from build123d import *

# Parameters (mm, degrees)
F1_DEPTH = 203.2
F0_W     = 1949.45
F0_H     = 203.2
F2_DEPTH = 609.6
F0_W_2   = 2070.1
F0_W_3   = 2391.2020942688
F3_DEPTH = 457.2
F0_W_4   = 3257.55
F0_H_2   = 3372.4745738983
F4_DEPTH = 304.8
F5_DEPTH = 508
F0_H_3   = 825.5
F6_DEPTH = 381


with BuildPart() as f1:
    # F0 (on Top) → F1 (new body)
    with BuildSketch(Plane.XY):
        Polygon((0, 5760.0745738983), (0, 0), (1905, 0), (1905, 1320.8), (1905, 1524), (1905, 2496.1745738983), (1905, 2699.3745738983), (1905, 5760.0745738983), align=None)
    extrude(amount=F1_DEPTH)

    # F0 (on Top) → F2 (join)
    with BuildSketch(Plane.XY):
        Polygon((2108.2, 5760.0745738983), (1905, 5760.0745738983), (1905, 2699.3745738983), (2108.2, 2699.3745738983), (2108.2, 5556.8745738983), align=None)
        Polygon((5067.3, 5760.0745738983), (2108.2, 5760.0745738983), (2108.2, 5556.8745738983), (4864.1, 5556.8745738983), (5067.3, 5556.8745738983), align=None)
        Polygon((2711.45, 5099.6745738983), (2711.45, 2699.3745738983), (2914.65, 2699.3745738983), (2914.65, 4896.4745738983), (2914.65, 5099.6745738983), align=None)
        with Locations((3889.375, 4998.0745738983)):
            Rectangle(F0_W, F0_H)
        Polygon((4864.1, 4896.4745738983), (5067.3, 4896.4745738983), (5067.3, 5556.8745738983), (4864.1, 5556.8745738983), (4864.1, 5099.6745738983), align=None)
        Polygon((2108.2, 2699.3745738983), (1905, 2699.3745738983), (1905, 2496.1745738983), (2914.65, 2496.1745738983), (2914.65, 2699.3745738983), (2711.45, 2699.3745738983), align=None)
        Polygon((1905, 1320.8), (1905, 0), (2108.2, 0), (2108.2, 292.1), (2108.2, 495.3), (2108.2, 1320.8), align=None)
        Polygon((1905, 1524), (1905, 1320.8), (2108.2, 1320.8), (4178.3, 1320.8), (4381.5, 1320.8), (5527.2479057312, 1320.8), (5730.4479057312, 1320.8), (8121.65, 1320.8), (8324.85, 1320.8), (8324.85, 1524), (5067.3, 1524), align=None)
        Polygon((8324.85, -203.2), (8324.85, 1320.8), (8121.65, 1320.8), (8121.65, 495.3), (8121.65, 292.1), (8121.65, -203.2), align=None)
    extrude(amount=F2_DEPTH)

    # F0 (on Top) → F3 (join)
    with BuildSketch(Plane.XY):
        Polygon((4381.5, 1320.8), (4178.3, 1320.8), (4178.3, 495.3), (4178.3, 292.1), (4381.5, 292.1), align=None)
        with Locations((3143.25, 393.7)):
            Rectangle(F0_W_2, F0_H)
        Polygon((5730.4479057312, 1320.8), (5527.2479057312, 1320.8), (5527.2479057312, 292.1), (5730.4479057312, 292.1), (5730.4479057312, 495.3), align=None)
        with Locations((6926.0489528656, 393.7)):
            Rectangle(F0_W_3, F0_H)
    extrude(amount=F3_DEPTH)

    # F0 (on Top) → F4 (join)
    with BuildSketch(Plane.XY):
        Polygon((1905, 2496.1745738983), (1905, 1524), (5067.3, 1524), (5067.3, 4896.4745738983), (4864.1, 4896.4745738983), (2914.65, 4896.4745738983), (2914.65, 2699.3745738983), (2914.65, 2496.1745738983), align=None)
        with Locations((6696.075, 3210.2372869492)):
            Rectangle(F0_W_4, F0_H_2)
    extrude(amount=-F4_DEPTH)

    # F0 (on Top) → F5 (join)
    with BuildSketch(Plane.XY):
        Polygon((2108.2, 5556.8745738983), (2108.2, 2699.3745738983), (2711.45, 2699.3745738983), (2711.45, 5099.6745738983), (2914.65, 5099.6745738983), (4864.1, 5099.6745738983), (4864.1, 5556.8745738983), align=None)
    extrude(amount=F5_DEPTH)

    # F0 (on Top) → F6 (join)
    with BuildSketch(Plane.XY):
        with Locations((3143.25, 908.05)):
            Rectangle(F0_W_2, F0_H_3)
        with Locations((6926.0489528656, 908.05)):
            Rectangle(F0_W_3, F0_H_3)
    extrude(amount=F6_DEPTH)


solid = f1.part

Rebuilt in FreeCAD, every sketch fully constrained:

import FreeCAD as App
import Part
import Sketcher
Q = App.Units.Quantity

doc = App.newDocument("Part")
body = doc.addObject("PartDesign::Body", "Body")
body.AllowCompound = True

# Sketch on XY plane
sketch1 = body.newObject("Sketcher::SketchObject", "Sketch")
sketch1.AttachmentSupport = (doc.getObject("XY_Plane"), [""])
sketch1.MapMode = "FlatFace"
sketch1.addGeometry([
    Part.LineSegment(App.Vector(0, 5760, 0), App.Vector(0, 0, 0)),
    Part.LineSegment(App.Vector(0, 0, 0), App.Vector(1905, 0, 0)),
    Part.LineSegment(App.Vector(1905, 0, 0), App.Vector(1905, 5760, 0)),
    Part.LineSegment(App.Vector(1905, 5760, 0), App.Vector(0, 5760, 0)),
], False)
sketch1.addConstraint([
    Sketcher.Constraint("Coincident", 0, 2, 1, 1),
    Sketcher.Constraint("Coincident", 1, 2, 2, 1),
    Sketcher.Constraint("Coincident", 2, 2, 3, 1),
    Sketcher.Constraint("Coincident", 3, 2, 0, 1),
    Sketcher.Constraint("Vertical", 0),
    Sketcher.Constraint("Horizontal", 1),
    Sketcher.Constraint("Vertical", 2),
    Sketcher.Constraint("Horizontal", 3),
    Sketcher.Constraint("Coincident", 0, 2, -1, 1),
    Sketcher.Constraint("DistanceX", 1, 1, 1, 2, Q("75 in")),
    Sketcher.Constraint("DistanceY", 0, 2, 0, 1, Q("5760.074574 mm")),
])
pad1 = body.newObject("PartDesign::Pad", "Pad")
pad1.Profile = sketch1
pad1.Length = Q("8 in")

# Sketch on XY plane
sketch2 = body.newObject("Sketcher::SketchObject", "Sketch001")
sketch2.AttachmentSupport = (doc.getObject("XY_Plane"), [""])
sketch2.MapMode = "FlatFace"
sketch2.addGeometry([
    Part.LineSegment(App.Vector(1905, 5760, 0), App.Vector(1905, 2496, 0)),  # 0
    Part.LineSegment(App.Vector(1905, 2496, 0), App.Vector(2915, 2496, 0)),  # 1
    Part.LineSegment(App.Vector(2915, 2496, 0), App.Vector(2915, 4896, 0)),  # 2
    Part.LineSegment(App.Vector(2915, 4896, 0), App.Vector(5067, 4896, 0)),  # 3
    Part.LineSegment(App.Vector(5067, 4896, 0), App.Vector(5067, 5760, 0)),  # 4
    Part.LineSegment(App.Vector(5067, 5760, 0), App.Vector(1905, 5760, 0)),  # 5
    Part.LineSegment(App.Vector(2108, 2699, 0), App.Vector(2108, 5557, 0)),  # 6
    Part.LineSegment(App.Vector(2108, 5557, 0), App.Vector(4864, 5557, 0)),  # 7
    Part.LineSegment(App.Vector(4864, 5557, 0), App.Vector(4864, 5100, 0)),  # 8
    Part.LineSegment(App.Vector(4864, 5100, 0), App.Vector(2711, 5100, 0)),  # 9
    Part.LineSegment(App.Vector(2711, 5100, 0), App.Vector(2711, 2699, 0)),  # 10
    Part.LineSegment(App.Vector(2711, 2699, 0), App.Vector(2108, 2699, 0)),  # 11
    Part.LineSegment(App.Vector(1905, 0, 0), App.Vector(2108, 0, 0)),  # 12
    Part.LineSegment(App.Vector(2108, 0, 0), App.Vector(2108, 1321, 0)),  # 13
    Part.LineSegment(App.Vector(2108, 1321, 0), App.Vector(8122, 1321, 0)),  # 14
    Part.LineSegment(App.Vector(8122, 1321, 0), App.Vector(8122, -203, 0)),  # 15
    Part.LineSegment(App.Vector(8122, -203, 0), App.Vector(8325, -203, 0)),  # 16
    Part.LineSegment(App.Vector(8325, -203, 0), App.Vector(8325, 1524, 0)),  # 17
    Part.LineSegment(App.Vector(8325, 1524, 0), App.Vector(1905, 1524, 0)),  # 18
    Part.LineSegment(App.Vector(1905, 1524, 0), App.Vector(1905, 0, 0)),  # 19
], False)
sketch2.addConstraint([
    Sketcher.Constraint("Coincident", 0, 2, 1, 1),
    Sketcher.Constraint("Coincident", 1, 2, 2, 1),
    Sketcher.Constraint("Coincident", 2, 2, 3, 1),
    Sketcher.Constraint("Coincident", 3, 2, 4, 1),
    Sketcher.Constraint("Coincident", 4, 2, 5, 1),
    Sketcher.Constraint("Coincident", 5, 2, 0, 1),
    Sketcher.Constraint("Coincident", 6, 2, 7, 1),
    Sketcher.Constraint("Coincident", 7, 2, 8, 1),
    Sketcher.Constraint("Coincident", 8, 2, 9, 1),
    Sketcher.Constraint("Coincident", 9, 2, 10, 1),
    Sketcher.Constraint("Coincident", 10, 2, 11, 1),
    Sketcher.Constraint("Coincident", 11, 2, 6, 1),
    Sketcher.Constraint("Coincident", 12, 2, 13, 1),
    Sketcher.Constraint("Coincident", 13, 2, 14, 1),
    Sketcher.Constraint("Coincident", 14, 2, 15, 1),
    Sketcher.Constraint("Coincident", 15, 2, 16, 1),
    Sketcher.Constraint("Coincident", 16, 2, 17, 1),
    Sketcher.Constraint("Coincident", 17, 2, 18, 1),
    Sketcher.Constraint("Coincident", 18, 2, 19, 1),
    Sketcher.Constraint("Coincident", 19, 2, 12, 1),
    Sketcher.Constraint("Vertical", 0),
    Sketcher.Constraint("Horizontal", 1),
    Sketcher.Constraint("Vertical", 2),
    Sketcher.Constraint("Horizontal", 3),
    Sketcher.Constraint("Vertical", 4),
    Sketcher.Constraint("Horizontal", 5),
    Sketcher.Constraint("Vertical", 6),
    Sketcher.Constraint("Horizontal", 7),
    Sketcher.Constraint("Vertical", 8),
    Sketcher.Constraint("Horizontal", 9),
    Sketcher.Constraint("Vertical", 10),
    Sketcher.Constraint("Horizontal", 11),
    Sketcher.Constraint("Horizontal", 12),
    Sketcher.Constraint("Vertical", 13),
    Sketcher.Constraint("Horizontal", 14),
    Sketcher.Constraint("Vertical", 15),
    Sketcher.Constraint("Horizontal", 16),
    Sketcher.Constraint("Vertical", 17),
    Sketcher.Constraint("Horizontal", 18),
    Sketcher.Constraint("Vertical", 19),
    Sketcher.Constraint("PointOnObject", 12, 2, -1),
    Sketcher.Constraint("Vertical", 11, 2, 12, 2),
    Sketcher.Constraint("Vertical", 5, 2, 18, 2),
    Sketcher.Constraint("Equal", 3, 9),
    Sketcher.Constraint("Equal", 12, 16),
    Sketcher.Constraint("Equal", 2, 10),
    Sketcher.Constraint("Equal", 15, 19),
    Sketcher.Constraint("DistanceX", 12, 1, 12, 2, Q("8 in")),
    Sketcher.Constraint("DistanceY", 4, 1, 4, 2, Q("34 in")),
    Sketcher.Constraint("DistanceY", 8, 2, 8, 1, Q("18 in")),
    Sketcher.Constraint("DistanceY", 13, 1, 13, 2, Q("52 in")),
    Sketcher.Constraint("DistanceY", 15, 2, 15, 1, Q("60 in")),
    Sketcher.Constraint("DistanceX", 5, 2, 5, 1, Q("124.5 in")),
    Sketcher.Constraint("DistanceX", 7, 1, 7, 2, Q("108.5 in")),
    Sketcher.Constraint("DistanceY", 0, 2, 0, 1, Q("128.5 in")),
    Sketcher.Constraint("DistanceX", -1, 1, 0, 2, Q("75 in")),
    Sketcher.Constraint("DistanceY", 6, 2, 5, 2, Q("8 in")),
    Sketcher.Constraint("DistanceX", 1, 2, 14, 2, Q("205 in")),
    Sketcher.Constraint("DistanceX", 1, 1, 1, 2, Q("39.75 in")),
    Sketcher.Constraint("DistanceY", -1, 1, 0, 2, Q("2496.174574 mm")),
])
pad2 = body.newObject("PartDesign::Pad", "Pad001")
pad2.Profile = sketch2
pad2.Length = Q("24 in")

# Sketch on XY plane
sketch3 = body.newObject("Sketcher::SketchObject", "Sketch002")
sketch3.AttachmentSupport = (doc.getObject("XY_Plane"), [""])
sketch3.MapMode = "FlatFace"
sketch3.addGeometry([
    Part.LineSegment(App.Vector(4382, 1321, 0), App.Vector(4178, 1321, 0)),  # 0
    Part.LineSegment(App.Vector(4178, 1321, 0), App.Vector(4178, 495, 0)),  # 1
    Part.LineSegment(App.Vector(4178, 495, 0), App.Vector(2108, 495, 0)),  # 2
    Part.LineSegment(App.Vector(2108, 495, 0), App.Vector(2108, 292, 0)),  # 3
    Part.LineSegment(App.Vector(2108, 292, 0), App.Vector(4382, 292, 0)),  # 4
    Part.LineSegment(App.Vector(4382, 292, 0), App.Vector(4382, 1321, 0)),  # 5
    Part.LineSegment(App.Vector(5730, 1321, 0), App.Vector(5527, 1321, 0)),  # 6
    Part.LineSegment(App.Vector(5527, 1321, 0), App.Vector(5527, 292, 0)),  # 7
    Part.LineSegment(App.Vector(5527, 292, 0), App.Vector(8122, 292, 0)),  # 8
    Part.LineSegment(App.Vector(8122, 292, 0), App.Vector(8122, 495, 0)),  # 9
    Part.LineSegment(App.Vector(8122, 495, 0), App.Vector(5730, 495, 0)),  # 10
    Part.LineSegment(App.Vector(5730, 495, 0), App.Vector(5730, 1321, 0)),  # 11
], False)
sketch3.addConstraint([
    Sketcher.Constraint("Coincident", 0, 2, 1, 1),
    Sketcher.Constraint("Coincident", 1, 2, 2, 1),
    Sketcher.Constraint("Coincident", 2, 2, 3, 1),
    Sketcher.Constraint("Coincident", 3, 2, 4, 1),
    Sketcher.Constraint("Coincident", 4, 2, 5, 1),
    Sketcher.Constraint("Coincident", 5, 2, 0, 1),
    Sketcher.Constraint("Coincident", 6, 2, 7, 1),
    Sketcher.Constraint("Coincident", 7, 2, 8, 1),
    Sketcher.Constraint("Coincident", 8, 2, 9, 1),
    Sketcher.Constraint("Coincident", 9, 2, 10, 1),
    Sketcher.Constraint("Coincident", 10, 2, 11, 1),
    Sketcher.Constraint("Coincident", 11, 2, 6, 1),
    Sketcher.Constraint("Horizontal", 0),
    Sketcher.Constraint("Vertical", 1),
    Sketcher.Constraint("Horizontal", 2),
    Sketcher.Constraint("Vertical", 3),
    Sketcher.Constraint("Horizontal", 4),
    Sketcher.Constraint("Vertical", 5),
    Sketcher.Constraint("Horizontal", 6),
    Sketcher.Constraint("Vertical", 7),
    Sketcher.Constraint("Horizontal", 8),
    Sketcher.Constraint("Vertical", 9),
    Sketcher.Constraint("Horizontal", 10),
    Sketcher.Constraint("Vertical", 11),
    Sketcher.Constraint("Horizontal", 5, 2, 6, 2),
    Sketcher.Constraint("Horizontal", 4, 2, 7, 2),
    Sketcher.Constraint("Horizontal", 2, 2, 9, 2),
    Sketcher.Constraint("Equal", 0, 6),
    Sketcher.Constraint("Equal", 6, 3),
    Sketcher.Constraint("DistanceX", 0, 2, 0, 1, Q("8 in")),
    Sketcher.Constraint("DistanceX", 2, 2, 2, 1, Q("81.5 in")),
    Sketcher.Constraint("DistanceY", 1, 2, 1, 1, Q("32.5 in")),
    Sketcher.Constraint("DistanceY", -1, 1, 0, 2, Q("52 in")),
    Sketcher.Constraint("DistanceX", -1, 1, 2, 2, Q("83 in")),
    Sketcher.Constraint("DistanceX", -1, 1, 8, 2, Q("319.75 in")),
    Sketcher.Constraint("DistanceX", 8, 1, 8, 2, Q("2594.402094 mm")),
])
pad3 = body.newObject("PartDesign::Pad", "Pad002")
pad3.Profile = sketch3
pad3.Length = Q("18 in")

# Sketch on XY plane
sketch4 = body.newObject("Sketcher::SketchObject", "Sketch003")
sketch4.AttachmentSupport = (doc.getObject("XY_Plane"), [""])
sketch4.MapMode = "FlatFace"
sketch4.addGeometry([
    Part.LineSegment(App.Vector(1905, 2496, 0), App.Vector(1905, 1524, 0)),  # 0
    Part.LineSegment(App.Vector(1905, 1524, 0), App.Vector(8325, 1524, 0)),  # 1
    Part.LineSegment(App.Vector(8325, 1524, 0), App.Vector(8325, 4896, 0)),  # 2
    Part.LineSegment(App.Vector(8325, 4896, 0), App.Vector(2915, 4896, 0)),  # 3
    Part.LineSegment(App.Vector(2915, 4896, 0), App.Vector(2915, 2496, 0)),  # 4
    Part.LineSegment(App.Vector(2915, 2496, 0), App.Vector(1905, 2496, 0)),  # 5
], False)
sketch4.addConstraint([
    Sketcher.Constraint("Coincident", 0, 2, 1, 1),
    Sketcher.Constraint("Coincident", 1, 2, 2, 1),
    Sketcher.Constraint("Coincident", 2, 2, 3, 1),
    Sketcher.Constraint("Coincident", 3, 2, 4, 1),
    Sketcher.Constraint("Coincident", 4, 2, 5, 1),
    Sketcher.Constraint("Coincident", 5, 2, 0, 1),
    Sketcher.Constraint("Vertical", 0),
    Sketcher.Constraint("Horizontal", 1),
    Sketcher.Constraint("Vertical", 2),
    Sketcher.Constraint("Horizontal", 3),
    Sketcher.Constraint("Vertical", 4),
    Sketcher.Constraint("Horizontal", 5),
    Sketcher.Constraint("DistanceX", 3, 2, 3, 1, Q("213 in")),
    Sketcher.Constraint("DistanceY", 4, 2, 4, 1, Q("94.5 in")),
    Sketcher.Constraint("DistanceX", -1, 1, 0, 2, Q("75 in")),
    Sketcher.Constraint("DistanceY", -1, 1, 0, 2, Q("60 in")),
    Sketcher.Constraint("DistanceX", 1, 1, 1, 2, Q("252.75 in")),
    Sketcher.Constraint("DistanceY", 0, 2, 0, 1, Q("972.174574 mm")),
])
pad4 = body.newObject("PartDesign::Pad", "Pad003")
pad4.Profile = sketch4
pad4.Length = Q("12 in")
pad4.Reversed = True

# Sketch on XY plane
sketch5 = body.newObject("Sketcher::SketchObject", "Sketch004")
sketch5.AttachmentSupport = (doc.getObject("XY_Plane"), [""])
sketch5.MapMode = "FlatFace"
sketch5.addGeometry([
    Part.LineSegment(App.Vector(2108, 5557, 0), App.Vector(2108, 2699, 0)),  # 0
    Part.LineSegment(App.Vector(2108, 2699, 0), App.Vector(2711, 2699, 0)),  # 1
    Part.LineSegment(App.Vector(2711, 2699, 0), App.Vector(2711, 5100, 0)),  # 2
    Part.LineSegment(App.Vector(2711, 5100, 0), App.Vector(4864, 5100, 0)),  # 3
    Part.LineSegment(App.Vector(4864, 5100, 0), App.Vector(4864, 5557, 0)),  # 4
    Part.LineSegment(App.Vector(4864, 5557, 0), App.Vector(2108, 5557, 0)),  # 5
], False)
sketch5.addConstraint([
    Sketcher.Constraint("Coincident", 0, 2, 1, 1),
    Sketcher.Constraint("Coincident", 1, 2, 2, 1),
    Sketcher.Constraint("Coincident", 2, 2, 3, 1),
    Sketcher.Constraint("Coincident", 3, 2, 4, 1),
    Sketcher.Constraint("Coincident", 4, 2, 5, 1),
    Sketcher.Constraint("Coincident", 5, 2, 0, 1),
    Sketcher.Constraint("Vertical", 0),
    Sketcher.Constraint("Horizontal", 1),
    Sketcher.Constraint("Vertical", 2),
    Sketcher.Constraint("Horizontal", 3),
    Sketcher.Constraint("Vertical", 4),
    Sketcher.Constraint("Horizontal", 5),
    Sketcher.Constraint("DistanceY", 4, 1, 4, 2, Q("18 in")),
    Sketcher.Constraint("DistanceX", 5, 2, 5, 1, Q("108.5 in")),
    Sketcher.Constraint("DistanceY", 0, 2, 0, 1, Q("112.5 in")),
    Sketcher.Constraint("DistanceX", -1, 1, 0, 2, Q("83 in")),
    Sketcher.Constraint("DistanceX", 1, 1, 1, 2, Q("23.75 in")),
    Sketcher.Constraint("DistanceY", -1, 1, 0, 2, Q("2699.374574 mm")),
])
pad5 = body.newObject("PartDesign::Pad", "Pad004")
pad5.Profile = sketch5
pad5.Length = Q("20 in")

# Sketch on XY plane
sketch6 = body.newObject("Sketcher::SketchObject", "Sketch005")
sketch6.AttachmentSupport = (doc.getObject("XY_Plane"), [""])
sketch6.MapMode = "FlatFace"
sketch6.addGeometry([
    Part.LineSegment(App.Vector(2108, 1321, 0), App.Vector(2108, 495, 0)),  # 0
    Part.LineSegment(App.Vector(2108, 495, 0), App.Vector(4178, 495, 0)),  # 1
    Part.LineSegment(App.Vector(4178, 495, 0), App.Vector(4178, 1321, 0)),  # 2
    Part.LineSegment(App.Vector(4178, 1321, 0), App.Vector(2108, 1321, 0)),  # 3
    Part.LineSegment(App.Vector(5730, 1321, 0), App.Vector(5730, 495, 0)),  # 4
    Part.LineSegment(App.Vector(5730, 495, 0), App.Vector(8122, 495, 0)),  # 5
    Part.LineSegment(App.Vector(8122, 495, 0), App.Vector(8122, 1321, 0)),  # 6
    Part.LineSegment(App.Vector(8122, 1321, 0), App.Vector(5730, 1321, 0)),  # 7
], False)
sketch6.addConstraint([
    Sketcher.Constraint("Coincident", 0, 2, 1, 1),
    Sketcher.Constraint("Coincident", 1, 2, 2, 1),
    Sketcher.Constraint("Coincident", 2, 2, 3, 1),
    Sketcher.Constraint("Coincident", 3, 2, 0, 1),
    Sketcher.Constraint("Coincident", 4, 2, 5, 1),
    Sketcher.Constraint("Coincident", 5, 2, 6, 1),
    Sketcher.Constraint("Coincident", 6, 2, 7, 1),
    Sketcher.Constraint("Coincident", 7, 2, 4, 1),
    Sketcher.Constraint("Vertical", 0),
    Sketcher.Constraint("Horizontal", 1),
    Sketcher.Constraint("Vertical", 2),
    Sketcher.Constraint("Horizontal", 3),
    Sketcher.Constraint("Vertical", 4),
    Sketcher.Constraint("Horizontal", 5),
    Sketcher.Constraint("Vertical", 6),
    Sketcher.Constraint("Horizontal", 7),
    Sketcher.Constraint("Horizontal", 1, 2, 4, 2),
    Sketcher.Constraint("Horizontal", 3, 2, 6, 2),
    Sketcher.Constraint("DistanceX", 1, 1, 1, 2, Q("81.5 in")),
    Sketcher.Constraint("DistanceY", 0, 2, 0, 1, Q("32.5 in")),
    Sketcher.Constraint("DistanceX", -1, 1, 0, 2, Q("83 in")),
    Sketcher.Constraint("DistanceY", -1, 1, 2, 2, Q("52 in")),
    Sketcher.Constraint("DistanceX", -1, 1, 5, 2, Q("319.75 in")),
    Sketcher.Constraint("DistanceX", 5, 1, 5, 2, Q("2391.202094 mm")),
])
pad6 = body.newObject("PartDesign::Pad", "Pad005")
pad6.Profile = sketch6
pad6.Length = Q("15 in")

doc.recompute()
